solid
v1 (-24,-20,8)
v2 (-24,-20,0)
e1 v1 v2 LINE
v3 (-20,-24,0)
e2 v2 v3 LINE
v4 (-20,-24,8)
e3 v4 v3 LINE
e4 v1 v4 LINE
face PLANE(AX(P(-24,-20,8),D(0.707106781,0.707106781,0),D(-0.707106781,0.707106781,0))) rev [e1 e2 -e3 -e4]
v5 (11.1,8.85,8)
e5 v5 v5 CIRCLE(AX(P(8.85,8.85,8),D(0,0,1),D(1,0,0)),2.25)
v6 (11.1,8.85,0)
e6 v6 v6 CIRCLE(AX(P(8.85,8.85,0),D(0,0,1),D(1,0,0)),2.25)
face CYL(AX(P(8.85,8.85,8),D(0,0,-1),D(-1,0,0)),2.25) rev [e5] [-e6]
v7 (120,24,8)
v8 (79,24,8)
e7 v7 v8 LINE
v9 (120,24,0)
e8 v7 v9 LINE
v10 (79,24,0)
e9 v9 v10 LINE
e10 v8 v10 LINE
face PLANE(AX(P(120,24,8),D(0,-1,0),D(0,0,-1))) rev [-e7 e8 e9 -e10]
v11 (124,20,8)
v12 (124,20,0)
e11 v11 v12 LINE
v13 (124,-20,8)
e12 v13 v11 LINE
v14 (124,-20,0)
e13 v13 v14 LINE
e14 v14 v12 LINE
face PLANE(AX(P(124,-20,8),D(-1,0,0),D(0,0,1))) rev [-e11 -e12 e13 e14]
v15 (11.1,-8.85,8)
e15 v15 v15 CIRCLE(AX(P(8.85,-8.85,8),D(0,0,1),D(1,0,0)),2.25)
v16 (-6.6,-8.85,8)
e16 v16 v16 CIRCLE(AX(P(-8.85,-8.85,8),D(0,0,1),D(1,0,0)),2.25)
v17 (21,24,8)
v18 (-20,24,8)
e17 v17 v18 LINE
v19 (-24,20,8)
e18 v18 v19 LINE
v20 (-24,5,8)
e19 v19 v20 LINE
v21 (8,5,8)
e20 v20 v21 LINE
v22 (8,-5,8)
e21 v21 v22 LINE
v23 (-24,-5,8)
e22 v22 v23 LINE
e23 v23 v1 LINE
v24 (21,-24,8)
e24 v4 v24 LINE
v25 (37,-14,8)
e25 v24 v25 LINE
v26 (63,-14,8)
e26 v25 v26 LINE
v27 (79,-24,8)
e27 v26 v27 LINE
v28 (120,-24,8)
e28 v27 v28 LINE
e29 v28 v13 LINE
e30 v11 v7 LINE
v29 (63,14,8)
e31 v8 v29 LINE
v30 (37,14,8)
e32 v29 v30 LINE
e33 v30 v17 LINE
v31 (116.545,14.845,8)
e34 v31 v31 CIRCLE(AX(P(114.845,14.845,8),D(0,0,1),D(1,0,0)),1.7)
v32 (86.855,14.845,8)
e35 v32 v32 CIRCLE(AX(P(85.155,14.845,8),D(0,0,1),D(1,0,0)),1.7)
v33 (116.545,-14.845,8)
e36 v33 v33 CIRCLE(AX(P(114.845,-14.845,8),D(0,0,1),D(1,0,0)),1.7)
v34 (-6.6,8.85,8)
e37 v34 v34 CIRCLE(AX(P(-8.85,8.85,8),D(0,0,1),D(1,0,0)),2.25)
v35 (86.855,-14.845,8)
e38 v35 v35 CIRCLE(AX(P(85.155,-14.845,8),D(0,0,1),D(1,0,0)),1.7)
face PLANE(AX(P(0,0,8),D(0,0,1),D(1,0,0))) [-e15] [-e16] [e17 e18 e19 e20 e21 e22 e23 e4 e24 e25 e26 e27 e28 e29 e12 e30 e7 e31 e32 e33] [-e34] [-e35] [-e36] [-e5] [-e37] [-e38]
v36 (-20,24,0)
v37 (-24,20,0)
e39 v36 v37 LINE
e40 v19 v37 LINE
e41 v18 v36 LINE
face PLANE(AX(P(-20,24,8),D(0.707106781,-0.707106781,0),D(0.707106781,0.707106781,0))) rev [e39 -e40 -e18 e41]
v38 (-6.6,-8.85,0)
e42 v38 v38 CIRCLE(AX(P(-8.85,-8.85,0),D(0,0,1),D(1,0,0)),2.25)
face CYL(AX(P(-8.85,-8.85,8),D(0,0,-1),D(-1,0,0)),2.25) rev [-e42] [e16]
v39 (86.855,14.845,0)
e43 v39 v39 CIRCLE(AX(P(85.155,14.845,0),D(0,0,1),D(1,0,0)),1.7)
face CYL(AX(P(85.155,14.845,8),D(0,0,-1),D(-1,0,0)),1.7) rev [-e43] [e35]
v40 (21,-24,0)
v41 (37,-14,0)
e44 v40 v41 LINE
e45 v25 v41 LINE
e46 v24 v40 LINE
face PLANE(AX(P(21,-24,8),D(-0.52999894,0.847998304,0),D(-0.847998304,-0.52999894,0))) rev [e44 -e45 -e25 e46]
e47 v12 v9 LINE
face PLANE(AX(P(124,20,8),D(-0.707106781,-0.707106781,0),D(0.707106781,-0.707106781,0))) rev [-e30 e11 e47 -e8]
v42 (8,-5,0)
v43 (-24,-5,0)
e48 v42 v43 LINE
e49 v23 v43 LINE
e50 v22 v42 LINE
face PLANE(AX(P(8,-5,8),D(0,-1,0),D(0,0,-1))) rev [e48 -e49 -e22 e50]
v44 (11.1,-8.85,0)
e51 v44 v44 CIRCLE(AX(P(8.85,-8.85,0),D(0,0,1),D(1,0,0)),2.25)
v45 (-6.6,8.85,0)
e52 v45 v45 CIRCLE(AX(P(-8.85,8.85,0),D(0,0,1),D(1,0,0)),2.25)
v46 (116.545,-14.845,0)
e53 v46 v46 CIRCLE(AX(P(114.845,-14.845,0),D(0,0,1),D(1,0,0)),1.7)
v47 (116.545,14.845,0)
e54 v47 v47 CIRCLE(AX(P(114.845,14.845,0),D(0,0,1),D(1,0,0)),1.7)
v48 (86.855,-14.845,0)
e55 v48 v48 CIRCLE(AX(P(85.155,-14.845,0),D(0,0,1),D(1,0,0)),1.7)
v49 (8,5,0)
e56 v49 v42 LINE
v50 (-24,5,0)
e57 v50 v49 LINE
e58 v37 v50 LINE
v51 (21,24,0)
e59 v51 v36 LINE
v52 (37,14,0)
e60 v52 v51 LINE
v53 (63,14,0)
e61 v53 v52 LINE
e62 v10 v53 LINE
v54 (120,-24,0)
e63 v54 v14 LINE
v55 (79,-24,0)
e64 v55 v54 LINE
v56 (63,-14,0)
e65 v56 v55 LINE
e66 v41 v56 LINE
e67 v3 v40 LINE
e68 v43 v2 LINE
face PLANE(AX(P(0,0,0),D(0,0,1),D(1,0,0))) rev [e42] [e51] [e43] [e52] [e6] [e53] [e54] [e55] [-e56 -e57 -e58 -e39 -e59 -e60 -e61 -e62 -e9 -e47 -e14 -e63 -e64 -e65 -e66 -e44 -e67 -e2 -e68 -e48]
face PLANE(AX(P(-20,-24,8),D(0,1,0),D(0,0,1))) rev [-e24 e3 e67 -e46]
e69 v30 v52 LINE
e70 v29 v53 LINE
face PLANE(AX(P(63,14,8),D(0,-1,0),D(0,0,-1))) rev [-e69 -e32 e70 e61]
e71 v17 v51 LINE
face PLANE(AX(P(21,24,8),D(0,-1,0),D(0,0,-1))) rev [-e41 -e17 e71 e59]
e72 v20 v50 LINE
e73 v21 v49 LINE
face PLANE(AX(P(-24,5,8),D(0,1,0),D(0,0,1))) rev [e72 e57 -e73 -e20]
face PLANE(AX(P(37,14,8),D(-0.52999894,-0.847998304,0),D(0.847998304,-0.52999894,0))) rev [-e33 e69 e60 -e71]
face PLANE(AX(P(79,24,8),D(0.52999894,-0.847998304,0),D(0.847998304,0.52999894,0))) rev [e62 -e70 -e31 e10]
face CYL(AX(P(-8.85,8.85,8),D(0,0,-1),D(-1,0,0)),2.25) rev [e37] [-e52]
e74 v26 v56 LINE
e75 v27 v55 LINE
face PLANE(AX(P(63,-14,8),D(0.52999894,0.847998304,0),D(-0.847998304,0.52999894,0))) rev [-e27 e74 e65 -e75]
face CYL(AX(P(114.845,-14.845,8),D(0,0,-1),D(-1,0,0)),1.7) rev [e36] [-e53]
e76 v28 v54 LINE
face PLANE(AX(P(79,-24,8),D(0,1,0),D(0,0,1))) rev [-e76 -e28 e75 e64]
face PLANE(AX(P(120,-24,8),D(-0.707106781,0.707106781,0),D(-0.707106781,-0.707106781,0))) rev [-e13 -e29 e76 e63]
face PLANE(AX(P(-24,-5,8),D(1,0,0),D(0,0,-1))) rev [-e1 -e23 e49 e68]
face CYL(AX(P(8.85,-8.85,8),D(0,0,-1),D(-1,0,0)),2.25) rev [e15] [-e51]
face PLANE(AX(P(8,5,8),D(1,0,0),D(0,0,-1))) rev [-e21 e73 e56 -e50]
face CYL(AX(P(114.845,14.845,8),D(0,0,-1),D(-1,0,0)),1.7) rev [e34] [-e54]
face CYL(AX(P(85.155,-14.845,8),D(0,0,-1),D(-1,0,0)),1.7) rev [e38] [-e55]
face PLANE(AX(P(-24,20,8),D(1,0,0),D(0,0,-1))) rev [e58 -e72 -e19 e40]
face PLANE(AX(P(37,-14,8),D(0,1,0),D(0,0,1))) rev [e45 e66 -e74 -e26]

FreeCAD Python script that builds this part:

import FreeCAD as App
import Part
import Sketcher
Q = App.Units.Quantity

doc = App.newDocument("Part")
params = doc.addObject("Spreadsheet::Sheet", "Params")
for row, (alias, value) in enumerate([
    ("sketch1_diameter", "4.5 mm"),
    ("sketch1_diameter2", "3.4 mm"),
    ("sketch1_width", "41 mm"),
    ("sketch1_width2", "26 mm"),
    ("sketch1_width3", "32 mm"),
    ("pad1_length", "8 mm"),
], start=1):
    params.set(f"A{row}", alias)
    params.set(f"B{row}", "=" + value)
    params.setAlias(f"B{row}", alias)

body = doc.addObject("PartDesign::Body", "Body")

# Sketch on XY plane
sketch1 = body.newObject("Sketcher::SketchObject", "Sketch")
sketch1.AttachmentSupport = (doc.getObject("XY_Plane"), [""])
sketch1.MapMode = "FlatFace"
sketch1.addGeometry(Part.LineSegment(App.Vector(-24, -20, 0), App.Vector(-20, -24, 0)), False)
sketch1.addGeometry(Part.LineSegment(App.Vector(-20, -24, 0), App.Vector(21, -24, 0)), False)
sketch1.addGeometry(Part.LineSegment(App.Vector(21, -24, 0), App.Vector(37, -14, 0)), False)
sketch1.addGeometry(Part.LineSegment(App.Vector(37, -14, 0), App.Vector(63, -14, 0)), False)
sketch1.addGeometry(Part.LineSegment(App.Vector(63, -14, 0), App.Vector(79, -24, 0)), False)
sketch1.addGeometry(Part.LineSegment(App.Vector(79, -24, 0), App.Vector(120, -24, 0)), False)
sketch1.addGeometry(Part.LineSegment(App.Vector(120, -24, 0), App.Vector(124, -20, 0)), False)
sketch1.addGeometry(Part.LineSegment(App.Vector(124, -20, 0), App.Vector(124, 20, 0)), False)
sketch1.addGeometry(Part.LineSegment(App.Vector(124, 20, 0), App.Vector(120, 24, 0)), False)
sketch1.addGeometry(Part.LineSegment(App.Vector(120, 24, 0), App.Vector(79, 24, 0)), False)
sketch1.addGeometry(Part.LineSegment(App.Vector(79, 24, 0), App.Vector(63, 14, 0)), False)
sketch1.addGeometry(Part.LineSegment(App.Vector(63, 14, 0), App.Vector(37, 14, 0)), False)
sketch1.addGeometry(Part.LineSegment(App.Vector(37, 14, 0), App.Vector(21, 24, 0)), False)
sketch1.addGeometry(Part.LineSegment(App.Vector(21, 24, 0), App.Vector(-20, 24, 0)), False)
sketch1.addGeometry(Part.LineSegment(App.Vector(-20, 24, 0), App.Vector(-24, 20, 0)), False)
sketch1.addGeometry(Part.LineSegment(App.Vector(-24, 20, 0), App.Vector(-24, 5, 0)), False)
sketch1.addGeometry(Part.LineSegment(App.Vector(-24, 5, 0), App.Vector(8, 5, 0)), False)
sketch1.addGeometry(Part.LineSegment(App.Vector(8, 5, 0), App.Vector(8, -5, 0)), False)
sketch1.addGeometry(Part.LineSegment(App.Vector(8, -5, 0), App.Vector(-24, -5, 0)), False)
sketch1.addGeometry(Part.LineSegment(App.Vector(-24, -5, 0), App.Vector(-24, -20, 0)), False)
sketch1.addGeometry(Part.Circle(App.Vector(-8.85, -8.85, 0), App.Vector(0, 0, 1), 2.25), False)
sketch1.addGeometry(Part.Circle(App.Vector(8.85, -8.85, 0), App.Vector(0, 0, 1), 2.25), False)
sketch1.addGeometry(Part.Circle(App.Vector(85.155, -14.845, 0), App.Vector(0, 0, 1), 1.7), False)
sketch1.addGeometry(Part.Circle(App.Vector(114.845, -14.845, 0), App.Vector(0, 0, 1), 1.7), False)
sketch1.addGeometry(Part.Circle(App.Vector(-8.85, 8.85, 0), App.Vector(0, 0, 1), 2.25), False)
sketch1.addGeometry(Part.Circle(App.Vector(8.85, 8.85, 0), App.Vector(0, 0, 1), 2.25), False)
sketch1.addGeometry(Part.Circle(App.Vector(85.155, 14.845, 0), App.Vector(0, 0, 1), 1.7), False)
sketch1.addGeometry(Part.Circle(App.Vector(114.845, 14.845, 0), App.Vector(0, 0, 1), 1.7), False)
sketch1.addConstraint(Sketcher.Constraint("Coincident", 0, 2, 1, 1))
sketch1.addConstraint(Sketcher.Constraint("Coincident", 1, 2, 2, 1))
sketch1.addConstraint(Sketcher.Constraint("Coincident", 2, 2, 3, 1))
sketch1.addConstraint(Sketcher.Constraint("Coincident", 3, 2, 4, 1))
sketch1.addConstraint(Sketcher.Constraint("Coincident", 4, 2, 5, 1))
sketch1.addConstraint(Sketcher.Constraint("Coincident", 5, 2, 6, 1))
sketch1.addConstraint(Sketcher.Constraint("Coincident", 6, 2, 7, 1))
sketch1.addConstraint(Sketcher.Constraint("Coincident", 7, 2, 8, 1))
sketch1.addConstraint(Sketcher.Constraint("Coincident", 8, 2, 9, 1))
sketch1.addConstraint(Sketcher.Constraint("Coincident", 9, 2, 10, 1))
sketch1.addConstraint(Sketcher.Constraint("Coincident", 10, 2, 11, 1))
sketch1.addConstraint(Sketcher.Constraint("Coincident", 11, 2, 12, 1))
sketch1.addConstraint(Sketcher.Constraint("Coincident", 12, 2, 13, 1))
sketch1.addConstraint(Sketcher.Constraint("Coincident", 13, 2, 14, 1))
sketch1.addConstraint(Sketcher.Constraint("Coincident", 14, 2, 15, 1))
sketch1.addConstraint(Sketcher.Constraint("Coincident", 15, 2, 16, 1))
sketch1.addConstraint(Sketcher.Constraint("Coincident", 16, 2, 17, 1))
sketch1.addConstraint(Sketcher.Constraint("Coincident", 17, 2, 18, 1))
sketch1.addConstraint(Sketcher.Constraint("Coincident", 18, 2, 19, 1))
sketch1.addConstraint(Sketcher.Constraint("Coincident", 19, 2, 0, 1))
sketch1.addConstraint(Sketcher.Constraint("Horizontal", 1))
sketch1.addConstraint(Sketcher.Constraint("Horizontal", 3))
sketch1.addConstraint(Sketcher.Constraint("Horizontal", 5))
sketch1.addConstraint(Sketcher.Constraint("Vertical", 7))
sketch1.addConstraint(Sketcher.Constraint("Horizontal", 9))
sketch1.addConstraint(Sketcher.Constraint("Horizontal", 11))
sketch1.addConstraint(Sketcher.Constraint("Horizontal", 13))
sketch1.addConstraint(Sketcher.Constraint("Vertical", 15))
sketch1.addConstraint(Sketcher.Constraint("Horizontal", 16))
sketch1.addConstraint(Sketcher.Constraint("Vertical", 17))
sketch1.addConstraint(Sketcher.Constraint("Horizontal", 18))
sketch1.addConstraint(Sketcher.Constraint("Vertical", 19))
sketch1.addConstraint(Sketcher.Constraint("Equal", 20, 21))
sketch1.addConstraint(Sketcher.Constraint("Equal", 22, 23))
sketch1.addConstraint(Sketcher.Constraint("Equal", 21, 24))
sketch1.addConstraint(Sketcher.Constraint("Equal", 24, 25))
sketch1.addConstraint(Sketcher.Constraint("Equal", 23, 26))
sketch1.addConstraint(Sketcher.Constraint("Equal", 26, 27))
sketch1.addConstraint(Sketcher.Constraint("Symmetric", 21, 3, 24, 3, -1, 1))
sketch1.addConstraint(Sketcher.Constraint("Symmetric", 20, 3, 25, 3, -1, 1))
sketch1.addConstraint(Sketcher.Constraint("Symmetric", 20, 3, 21, 3, -2))
sketch1.addConstraint(Sketcher.Constraint("Symmetric", 22, 3, 26, 3, -1))
sketch1.addConstraint(Sketcher.Constraint("Symmetric", 23, 3, 27, 3, -1))
sketch1.addConstraint(Sketcher.Constraint("Symmetric", 5, 2, 8, 2, -1))
sketch1.addConstraint(Sketcher.Constraint("Symmetric", 3, 2, 10, 2, -1))
sketch1.addConstraint(Sketcher.Constraint("Symmetric", 1, 2, 12, 2, -1))
sketch1.addConstraint(Sketcher.Constraint("Symmetric", 15, 2, 18, 2, -1))
sketch1.addConstraint(Sketcher.Constraint("Perpendicular", 0, 6))
sketch1.addConstraint(Sketcher.Constraint("Perpendicular", 6, 8))
sketch1.addConstraint(Sketcher.Constraint("Parallel", 2, 10))
sketch1.addConstraint(Sketcher.Constraint("Parallel", 4, 12))
sketch1.addConstraint(Sketcher.Constraint("Perpendicular", 8, 14))
sketch1.addConstraint(Sketcher.Constraint("Horizontal", 22, 3, 23, 3))
sketch1.addConstraint(Sketcher.Constraint("Horizontal", 1, 2, 4, 2))
sketch1.addConstraint(Sketcher.Constraint("Horizontal", 7, 2, 14, 2))
sketch1.addConstraint(Sketcher.Constraint("Horizontal", 6, 2, 19, 2))
sketch1.addConstraint(Sketcher.Constraint("Vertical", 4, 2, 9, 2))
sketch1.addConstraint(Sketcher.Constraint("Vertical", 0, 2, 13, 2))
sketch1.addConstraint(Sketcher.Constraint("Equal", 1, 5))
sketch1.addConstraint(Sketcher.Constraint("Diameter", 20, Q("4.5 mm")))
sketch1.addConstraint(Sketcher.Constraint("Diameter", 22, Q("3.4 mm")))
sketch1.addConstraint(Sketcher.Constraint("DistanceX", 1, 1, 1, 2, Q("41 mm")))
sketch1.addConstraint(Sketcher.Constraint("DistanceX", 3, 1, 3, 2, Q("26 mm")))
sketch1.addConstraint(Sketcher.Constraint("DistanceX", 16, 1, 16, 2, Q("32 mm")))
sketch1.addConstraint(Sketcher.Constraint("DistanceY", 7, 1, 7, 2, Q("40 mm")))
sketch1.addConstraint(Sketcher.Constraint("DistanceY", 15, 2, 15, 1, Q("15 mm")))
sketch1.addConstraint(Sketcher.Constraint("DistanceX", 0, 2, -1, 1, Q("20 mm")))
sketch1.addConstraint(Sketcher.Constraint("DistanceY", 0, 2, -1, 1, Q("24 mm")))
sketch1.addConstraint(Sketcher.Constraint("DistanceX", -1, 1, 2, 2, Q("37 mm")))
sketch1.addConstraint(Sketcher.Constraint("DistanceY", 2, 2, -1, 1, Q("14 mm")))
sketch1.addConstraint(Sketcher.Constraint("DistanceX", 20, 3, 21, 3, Q("17.7 mm")))
sketch1.addConstraint(Sketcher.Constraint("DistanceY", 20, 3, 24, 3, Q("17.7 mm")))
sketch1.addConstraint(Sketcher.Constraint("DistanceX", 22, 3, 23, 3, Q("29.69 mm")))
sketch1.addConstraint(Sketcher.Constraint("DistanceY", 22, 3, 26, 3, Q("29.69 mm")))
sketch1.addConstraint(Sketcher.Constraint("DistanceX", -1, 1, 22, 3, Q("85.155 mm")))
sketch1.setExpression("Constraints[59]", "Params.sketch1_diameter")
sketch1.setExpression("Constraints[60]", "Params.sketch1_diameter2")
sketch1.setExpression("Constraints[61]", "Params.sketch1_width")
sketch1.setExpression("Constraints[62]", "Params.sketch1_width2")
sketch1.setExpression("Constraints[63]", "Params.sketch1_width3")
pad1 = body.newObject("PartDesign::Pad", "Pad")
pad1.Profile = sketch1
pad1.setExpression("Length", "Params.pad1_length")

doc.recompute()
